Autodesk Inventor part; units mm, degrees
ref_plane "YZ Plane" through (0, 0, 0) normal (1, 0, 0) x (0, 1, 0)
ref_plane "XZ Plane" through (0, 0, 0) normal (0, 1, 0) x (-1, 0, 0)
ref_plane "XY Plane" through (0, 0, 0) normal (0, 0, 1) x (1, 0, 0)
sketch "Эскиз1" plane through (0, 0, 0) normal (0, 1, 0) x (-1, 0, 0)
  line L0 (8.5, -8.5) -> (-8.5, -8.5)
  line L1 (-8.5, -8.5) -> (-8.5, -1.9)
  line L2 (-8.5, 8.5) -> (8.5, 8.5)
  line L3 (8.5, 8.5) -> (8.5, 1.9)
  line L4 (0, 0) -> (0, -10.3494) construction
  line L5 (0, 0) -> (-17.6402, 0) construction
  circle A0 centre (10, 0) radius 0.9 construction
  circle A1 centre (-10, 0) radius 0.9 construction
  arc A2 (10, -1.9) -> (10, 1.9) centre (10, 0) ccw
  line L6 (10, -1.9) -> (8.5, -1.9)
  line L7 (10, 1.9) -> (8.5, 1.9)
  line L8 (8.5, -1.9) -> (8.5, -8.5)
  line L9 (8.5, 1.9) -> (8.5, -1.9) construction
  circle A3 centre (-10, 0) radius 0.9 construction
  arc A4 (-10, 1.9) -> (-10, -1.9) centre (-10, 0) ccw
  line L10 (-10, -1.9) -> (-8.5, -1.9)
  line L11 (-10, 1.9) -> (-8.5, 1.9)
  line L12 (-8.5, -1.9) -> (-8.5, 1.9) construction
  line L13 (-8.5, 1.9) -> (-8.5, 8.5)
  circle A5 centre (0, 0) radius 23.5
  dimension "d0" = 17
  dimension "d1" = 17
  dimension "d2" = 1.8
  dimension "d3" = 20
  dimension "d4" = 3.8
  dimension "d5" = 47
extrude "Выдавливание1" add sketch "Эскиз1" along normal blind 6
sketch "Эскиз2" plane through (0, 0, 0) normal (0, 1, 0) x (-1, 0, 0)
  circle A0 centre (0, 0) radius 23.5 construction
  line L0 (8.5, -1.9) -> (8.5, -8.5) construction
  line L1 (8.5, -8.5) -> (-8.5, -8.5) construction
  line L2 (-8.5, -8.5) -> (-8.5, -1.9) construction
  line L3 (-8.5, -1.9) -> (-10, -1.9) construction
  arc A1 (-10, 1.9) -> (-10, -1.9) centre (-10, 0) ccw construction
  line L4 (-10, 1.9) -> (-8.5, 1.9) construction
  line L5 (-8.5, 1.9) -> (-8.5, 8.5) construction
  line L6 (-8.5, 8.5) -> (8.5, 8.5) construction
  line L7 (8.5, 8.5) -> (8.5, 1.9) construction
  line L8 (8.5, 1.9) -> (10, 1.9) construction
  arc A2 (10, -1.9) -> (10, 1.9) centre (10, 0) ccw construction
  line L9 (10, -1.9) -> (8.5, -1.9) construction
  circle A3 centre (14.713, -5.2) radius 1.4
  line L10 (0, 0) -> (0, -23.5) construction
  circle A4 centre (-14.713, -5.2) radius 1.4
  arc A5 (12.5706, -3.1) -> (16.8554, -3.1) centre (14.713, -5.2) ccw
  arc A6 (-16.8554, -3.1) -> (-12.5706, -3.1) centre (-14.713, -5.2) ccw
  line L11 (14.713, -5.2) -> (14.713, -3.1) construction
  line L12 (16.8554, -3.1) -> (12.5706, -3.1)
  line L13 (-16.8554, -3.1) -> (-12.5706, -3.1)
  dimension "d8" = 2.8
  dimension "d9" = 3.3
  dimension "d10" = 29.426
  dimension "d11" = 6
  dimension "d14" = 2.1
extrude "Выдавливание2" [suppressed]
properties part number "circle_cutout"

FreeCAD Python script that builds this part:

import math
import FreeCAD as App
import Part
import Sketcher

doc = App.newDocument("Part")
body = doc.addObject("PartDesign::Body", "Body")

sketch1 = body.newObject("Sketcher::SketchObject", "Sketch")
sketch1.AttachmentSupport = (doc.getObject("XZ_Plane"), [""])
sketch1.MapMode = "FlatFace"
sketch1.addGeometry([
    Part.Circle(App.Vector(0, 0, 0), App.Vector(0, 0, 1), 23.5),
    Part.LineSegment(App.Vector(-8.5, -1.9, 0), App.Vector(-8.5, -8.5, 0)),
    Part.LineSegment(App.Vector(-8.5, -8.5, 0), App.Vector(8.5, -8.5, 0)),
    Part.LineSegment(App.Vector(8.5, -8.5, 0), App.Vector(8.5, -1.9, 0)),
    Part.LineSegment(App.Vector(8.5, -1.9, 0), App.Vector(10, -1.9, 0)),
    Part.ArcOfCircle(Part.Circle(App.Vector(10, 0, 0), App.Vector(0, 0, 1), 1.9), math.radians(-90), math.radians(90)),
    Part.LineSegment(App.Vector(10, 1.9, 0), App.Vector(8.5, 1.9, 0)),
    Part.LineSegment(App.Vector(8.5, 1.9, 0), App.Vector(8.5, 8.5, 0)),
    Part.LineSegment(App.Vector(8.5, 8.5, 0), App.Vector(-8.5, 8.5, 0)),
    Part.LineSegment(App.Vector(-8.5, 8.5, 0), App.Vector(-8.5, 1.9, 0)),
    Part.LineSegment(App.Vector(-8.5, 1.9, 0), App.Vector(-10, 1.9, 0)),
    Part.ArcOfCircle(Part.Circle(App.Vector(-10, 0, 0), App.Vector(0, 0, 1), 1.9), math.radians(90), math.radians(270)),
    Part.LineSegment(App.Vector(-10, -1.9, 0), App.Vector(-8.5, -1.9, 0)),
], False)
sketch1.addConstraint([
    Sketcher.Constraint("Coincident", 1, 2, 2, 1),
    Sketcher.Constraint("Coincident", 2, 2, 3, 1),
    Sketcher.Constraint("Coincident", 3, 2, 4, 1),
    Sketcher.Constraint("Tangent", 4, 2, 5, 1),
    Sketcher.Constraint("Tangent", 5, 2, 6, 1),
    Sketcher.Constraint("Coincident", 6, 2, 7, 1),
    Sketcher.Constraint("Coincident", 7, 2, 8, 1),
    Sketcher.Constraint("Coincident", 8, 2, 9, 1),
    Sketcher.Constraint("Coincident", 9, 2, 10, 1),
    Sketcher.Constraint("Tangent", 10, 2, 11, 1),
    Sketcher.Constraint("Tangent", 11, 2, 12, 1),
    Sketcher.Constraint("Coincident", 12, 2, 1, 1),
    Sketcher.Constraint("Vertical", 1),
    Sketcher.Constraint("Horizontal", 2),
    Sketcher.Constraint("Vertical", 3),
    Sketcher.Constraint("Horizontal", 4),
    Sketcher.Constraint("Horizontal", 6),
    Sketcher.Constraint("Vertical", 7),
    Sketcher.Constraint("Horizontal", 8),
    Sketcher.Constraint("Vertical", 9),
    Sketcher.Constraint("Horizontal", 10),
    Sketcher.Constraint("Horizontal", 12),
    Sketcher.Constraint("Coincident", 0, 3, -1, 1),
    Sketcher.Constraint("Equal", 5, 11),
    Sketcher.Constraint("Symmetric", 5, 3, 11, 3, -1, 1),
    Sketcher.Constraint("Symmetric", 1, 2, 7, 2, -1, 1),
    Sketcher.Constraint("Symmetric", 6, 2, 9, 2, -2),
    Sketcher.Constraint("Vertical", 3, 2, 6, 2),
    Sketcher.Constraint("Diameter", 0, 47.0),
    Sketcher.Constraint("Radius", 5, 1.9),
    Sketcher.Constraint("DistanceX", 2, 1, 2, 2, 17.0),
    Sketcher.Constraint("DistanceX", 11, 3, 5, 3, 20.0),
    Sketcher.Constraint("DistanceY", 1, 2, 8, 2, 17.0),
])
pad1 = body.newObject("PartDesign::Pad", "Pad")
pad1.Profile = sketch1
pad1.Length = 6
pad1.Reversed = True

doc.recompute()
